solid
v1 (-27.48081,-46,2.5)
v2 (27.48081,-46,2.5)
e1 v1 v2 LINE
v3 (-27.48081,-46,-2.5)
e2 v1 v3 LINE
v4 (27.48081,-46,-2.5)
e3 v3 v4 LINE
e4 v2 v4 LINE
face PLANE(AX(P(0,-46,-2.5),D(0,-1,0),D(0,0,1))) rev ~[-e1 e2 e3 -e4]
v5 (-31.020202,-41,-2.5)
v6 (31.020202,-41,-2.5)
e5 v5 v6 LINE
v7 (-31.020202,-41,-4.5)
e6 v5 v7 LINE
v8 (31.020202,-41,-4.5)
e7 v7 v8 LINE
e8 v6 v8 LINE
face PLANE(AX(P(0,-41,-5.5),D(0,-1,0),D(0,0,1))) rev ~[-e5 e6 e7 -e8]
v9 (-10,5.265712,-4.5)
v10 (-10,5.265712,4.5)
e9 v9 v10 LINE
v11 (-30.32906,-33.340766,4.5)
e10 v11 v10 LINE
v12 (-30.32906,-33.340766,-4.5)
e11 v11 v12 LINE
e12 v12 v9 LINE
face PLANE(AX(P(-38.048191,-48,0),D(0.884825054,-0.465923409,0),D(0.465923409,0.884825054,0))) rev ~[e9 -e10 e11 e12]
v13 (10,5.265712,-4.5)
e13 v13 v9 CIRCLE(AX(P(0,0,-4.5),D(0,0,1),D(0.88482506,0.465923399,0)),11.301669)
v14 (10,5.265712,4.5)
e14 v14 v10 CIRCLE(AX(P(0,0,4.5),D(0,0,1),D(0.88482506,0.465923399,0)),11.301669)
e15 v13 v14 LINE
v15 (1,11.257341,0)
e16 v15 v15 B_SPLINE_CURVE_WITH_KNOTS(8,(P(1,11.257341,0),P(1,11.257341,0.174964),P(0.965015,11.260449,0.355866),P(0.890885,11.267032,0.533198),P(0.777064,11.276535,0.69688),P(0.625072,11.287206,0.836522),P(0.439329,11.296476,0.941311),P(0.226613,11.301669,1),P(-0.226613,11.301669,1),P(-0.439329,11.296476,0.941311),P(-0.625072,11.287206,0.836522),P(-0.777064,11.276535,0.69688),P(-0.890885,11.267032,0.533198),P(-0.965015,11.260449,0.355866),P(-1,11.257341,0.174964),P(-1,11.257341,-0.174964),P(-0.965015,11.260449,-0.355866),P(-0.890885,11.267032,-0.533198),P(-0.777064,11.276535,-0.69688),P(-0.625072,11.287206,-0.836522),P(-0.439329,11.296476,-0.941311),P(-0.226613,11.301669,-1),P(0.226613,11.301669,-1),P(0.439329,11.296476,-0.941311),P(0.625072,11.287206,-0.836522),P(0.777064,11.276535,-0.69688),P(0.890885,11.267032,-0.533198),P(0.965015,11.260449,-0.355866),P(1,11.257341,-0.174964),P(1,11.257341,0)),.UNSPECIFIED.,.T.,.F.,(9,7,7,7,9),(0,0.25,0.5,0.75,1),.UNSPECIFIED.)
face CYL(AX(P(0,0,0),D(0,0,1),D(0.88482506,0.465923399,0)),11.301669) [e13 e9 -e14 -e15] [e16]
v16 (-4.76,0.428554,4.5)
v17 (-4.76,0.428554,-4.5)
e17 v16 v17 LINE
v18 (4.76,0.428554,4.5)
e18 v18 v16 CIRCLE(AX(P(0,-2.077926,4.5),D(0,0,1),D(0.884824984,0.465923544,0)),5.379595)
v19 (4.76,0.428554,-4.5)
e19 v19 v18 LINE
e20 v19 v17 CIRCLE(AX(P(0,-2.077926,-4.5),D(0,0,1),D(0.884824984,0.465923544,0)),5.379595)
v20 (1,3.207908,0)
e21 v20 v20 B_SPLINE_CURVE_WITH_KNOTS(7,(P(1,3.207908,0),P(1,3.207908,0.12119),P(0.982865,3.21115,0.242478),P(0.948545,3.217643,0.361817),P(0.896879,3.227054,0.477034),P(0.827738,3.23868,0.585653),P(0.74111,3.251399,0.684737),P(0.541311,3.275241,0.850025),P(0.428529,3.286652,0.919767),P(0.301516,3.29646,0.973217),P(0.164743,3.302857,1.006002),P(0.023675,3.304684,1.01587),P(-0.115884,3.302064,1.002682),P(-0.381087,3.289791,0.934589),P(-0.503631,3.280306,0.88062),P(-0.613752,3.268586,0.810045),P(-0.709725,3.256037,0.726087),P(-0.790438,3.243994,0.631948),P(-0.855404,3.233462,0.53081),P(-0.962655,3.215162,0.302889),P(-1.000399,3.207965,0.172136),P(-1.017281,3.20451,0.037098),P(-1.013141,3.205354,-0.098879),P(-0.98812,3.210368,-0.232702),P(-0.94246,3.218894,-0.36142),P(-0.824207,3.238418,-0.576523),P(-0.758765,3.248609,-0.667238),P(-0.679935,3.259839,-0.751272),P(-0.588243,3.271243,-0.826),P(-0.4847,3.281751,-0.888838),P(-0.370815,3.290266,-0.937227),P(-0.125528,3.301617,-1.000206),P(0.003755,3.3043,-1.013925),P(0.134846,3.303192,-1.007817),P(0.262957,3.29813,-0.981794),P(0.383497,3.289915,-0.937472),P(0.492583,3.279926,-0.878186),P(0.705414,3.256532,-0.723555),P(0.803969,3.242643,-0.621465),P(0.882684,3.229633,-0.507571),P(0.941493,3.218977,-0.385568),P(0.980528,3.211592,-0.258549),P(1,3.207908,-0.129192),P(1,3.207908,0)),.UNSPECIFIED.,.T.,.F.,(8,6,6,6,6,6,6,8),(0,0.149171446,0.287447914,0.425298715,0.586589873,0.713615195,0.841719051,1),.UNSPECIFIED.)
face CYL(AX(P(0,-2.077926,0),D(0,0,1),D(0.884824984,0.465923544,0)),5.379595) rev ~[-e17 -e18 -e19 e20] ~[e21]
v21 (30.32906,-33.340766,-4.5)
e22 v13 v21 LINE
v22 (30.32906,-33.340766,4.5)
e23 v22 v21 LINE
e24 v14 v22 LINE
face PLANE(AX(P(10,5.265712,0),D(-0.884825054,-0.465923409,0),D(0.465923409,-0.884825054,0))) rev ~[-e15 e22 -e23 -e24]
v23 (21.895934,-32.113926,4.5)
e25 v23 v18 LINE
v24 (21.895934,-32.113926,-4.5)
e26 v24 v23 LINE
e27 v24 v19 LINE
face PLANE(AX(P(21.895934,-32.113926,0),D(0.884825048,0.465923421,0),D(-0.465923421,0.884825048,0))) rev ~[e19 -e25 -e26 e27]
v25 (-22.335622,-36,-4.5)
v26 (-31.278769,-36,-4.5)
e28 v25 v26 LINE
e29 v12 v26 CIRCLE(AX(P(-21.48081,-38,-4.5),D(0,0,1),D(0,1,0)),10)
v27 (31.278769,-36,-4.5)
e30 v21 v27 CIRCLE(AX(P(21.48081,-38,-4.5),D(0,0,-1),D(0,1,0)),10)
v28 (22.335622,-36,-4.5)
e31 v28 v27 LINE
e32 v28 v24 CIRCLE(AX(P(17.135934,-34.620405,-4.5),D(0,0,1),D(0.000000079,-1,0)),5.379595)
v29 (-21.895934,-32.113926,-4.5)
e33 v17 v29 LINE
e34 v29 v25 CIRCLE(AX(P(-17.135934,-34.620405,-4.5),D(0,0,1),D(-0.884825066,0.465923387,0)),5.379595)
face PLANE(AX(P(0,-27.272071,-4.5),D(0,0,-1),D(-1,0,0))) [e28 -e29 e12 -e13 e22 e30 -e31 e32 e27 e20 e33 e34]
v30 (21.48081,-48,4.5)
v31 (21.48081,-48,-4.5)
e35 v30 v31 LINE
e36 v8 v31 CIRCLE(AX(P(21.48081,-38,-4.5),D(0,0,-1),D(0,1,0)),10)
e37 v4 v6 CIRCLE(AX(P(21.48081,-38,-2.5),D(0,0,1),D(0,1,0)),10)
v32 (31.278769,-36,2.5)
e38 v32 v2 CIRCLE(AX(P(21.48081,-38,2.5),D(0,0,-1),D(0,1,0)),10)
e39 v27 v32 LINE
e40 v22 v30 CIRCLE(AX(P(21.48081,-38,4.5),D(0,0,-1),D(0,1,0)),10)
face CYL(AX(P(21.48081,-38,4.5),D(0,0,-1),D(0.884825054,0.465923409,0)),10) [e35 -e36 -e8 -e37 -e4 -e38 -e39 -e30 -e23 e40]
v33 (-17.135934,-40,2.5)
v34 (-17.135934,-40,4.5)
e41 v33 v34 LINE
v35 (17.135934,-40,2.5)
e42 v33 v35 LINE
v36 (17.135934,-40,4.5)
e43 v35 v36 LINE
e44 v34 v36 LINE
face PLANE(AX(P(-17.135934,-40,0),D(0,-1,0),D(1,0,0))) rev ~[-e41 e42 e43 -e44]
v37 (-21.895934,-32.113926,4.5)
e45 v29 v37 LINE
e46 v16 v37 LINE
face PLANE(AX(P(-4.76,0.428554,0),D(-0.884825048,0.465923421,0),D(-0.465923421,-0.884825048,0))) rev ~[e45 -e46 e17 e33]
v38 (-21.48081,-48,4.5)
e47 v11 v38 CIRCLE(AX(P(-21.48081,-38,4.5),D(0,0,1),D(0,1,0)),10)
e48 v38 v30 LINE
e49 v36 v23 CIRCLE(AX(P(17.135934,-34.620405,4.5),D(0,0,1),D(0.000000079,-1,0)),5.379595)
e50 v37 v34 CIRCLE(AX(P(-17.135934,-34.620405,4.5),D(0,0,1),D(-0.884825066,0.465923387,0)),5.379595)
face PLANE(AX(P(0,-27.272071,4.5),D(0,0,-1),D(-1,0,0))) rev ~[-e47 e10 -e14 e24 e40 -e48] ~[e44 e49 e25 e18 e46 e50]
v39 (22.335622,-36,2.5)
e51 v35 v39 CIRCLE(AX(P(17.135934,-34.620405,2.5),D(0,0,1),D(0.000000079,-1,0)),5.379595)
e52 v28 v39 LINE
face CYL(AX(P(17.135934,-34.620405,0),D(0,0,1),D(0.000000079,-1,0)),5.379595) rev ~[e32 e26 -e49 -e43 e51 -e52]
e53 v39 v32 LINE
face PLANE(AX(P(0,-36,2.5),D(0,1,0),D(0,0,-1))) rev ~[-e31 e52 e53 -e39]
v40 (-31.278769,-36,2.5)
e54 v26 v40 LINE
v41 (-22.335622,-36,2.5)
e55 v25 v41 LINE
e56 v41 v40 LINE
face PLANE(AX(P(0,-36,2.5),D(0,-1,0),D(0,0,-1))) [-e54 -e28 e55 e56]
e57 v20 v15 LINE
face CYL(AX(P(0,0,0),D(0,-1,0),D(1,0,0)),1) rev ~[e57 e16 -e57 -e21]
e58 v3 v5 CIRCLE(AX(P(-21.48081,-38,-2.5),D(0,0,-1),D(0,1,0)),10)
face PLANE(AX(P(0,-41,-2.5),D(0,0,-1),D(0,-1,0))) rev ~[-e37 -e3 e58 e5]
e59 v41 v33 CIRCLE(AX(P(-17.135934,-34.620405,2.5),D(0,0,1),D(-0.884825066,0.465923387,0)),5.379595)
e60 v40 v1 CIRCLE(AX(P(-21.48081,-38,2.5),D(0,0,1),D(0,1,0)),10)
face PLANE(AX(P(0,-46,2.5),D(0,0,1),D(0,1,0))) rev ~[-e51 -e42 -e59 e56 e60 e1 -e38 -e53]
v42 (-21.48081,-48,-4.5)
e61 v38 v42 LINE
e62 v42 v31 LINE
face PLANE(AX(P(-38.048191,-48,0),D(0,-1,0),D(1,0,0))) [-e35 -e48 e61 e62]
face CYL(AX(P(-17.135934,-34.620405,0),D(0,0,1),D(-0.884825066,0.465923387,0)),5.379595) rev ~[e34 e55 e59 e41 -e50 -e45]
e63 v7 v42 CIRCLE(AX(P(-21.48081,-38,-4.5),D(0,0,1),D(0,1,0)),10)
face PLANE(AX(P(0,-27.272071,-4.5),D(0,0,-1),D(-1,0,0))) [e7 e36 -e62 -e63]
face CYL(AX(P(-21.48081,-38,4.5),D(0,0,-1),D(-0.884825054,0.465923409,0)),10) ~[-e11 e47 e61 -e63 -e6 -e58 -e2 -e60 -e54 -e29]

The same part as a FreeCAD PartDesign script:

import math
import FreeCAD as App
import Part
import Sketcher
Q = App.Units.Quantity


def edges_at(feature, points):
    """Names of the edges that pass closest to the given points."""
    edges = feature.Shape.Edges
    near = lambda p: min(range(len(edges)), key=lambda i: edges[i].distToShape(Part.Vertex(*p))[0])
    return sorted({f"Edge{near(p) + 1}" for p in points})

doc = App.newDocument("Part")
body = doc.addObject("PartDesign::Body", "Body")

sketch1 = body.newObject("Sketcher::SketchObject", "Sketch")
sketch1.AttachmentSupport = (doc.getObject("XY_Plane"), [""])
sketch1.MapMode = "FlatFace"
sketch1.addGeometry([
    Part.LineSegment(App.Vector(38, -48, 0), App.Vector(10, 5, 0)),
    Part.ArcOfCircle(Part.Circle(App.Vector(0, 0, 0), App.Vector(0, 0, 1), 11), math.radians(28), math.radians(152)),
    Part.LineSegment(App.Vector(-10, 5, 0), App.Vector(-38, -48, 0)),
    Part.LineSegment(App.Vector(-38, -48, 0), App.Vector(38, -48, 0)),
    Part.ArcOfCircle(Part.Circle(App.Vector(0, -2, 0), App.Vector(0, 0, 1), 5), math.radians(28), math.radians(152)),
    Part.LineSegment(App.Vector(5, 0, 0), App.Vector(22, -32, 0)),
    Part.ArcOfCircle(Part.Circle(App.Vector(17, -35, 0), App.Vector(0, 0, 1), 5), math.radians(-90), math.radians(28)),
    Part.LineSegment(App.Vector(17, -40, 0), App.Vector(-17, -40, 0)),
    Part.ArcOfCircle(Part.Circle(App.Vector(-17, -35, 0), App.Vector(0, 0, 1), 5), math.radians(152), math.radians(270)),
    Part.LineSegment(App.Vector(-22, -32, 0), App.Vector(-5, 0, 0)),
], False)
sketch1.addConstraint([
    Sketcher.Constraint("Tangent", 0, 2, 1, 1),
    Sketcher.Constraint("Tangent", 1, 2, 2, 1),
    Sketcher.Constraint("Coincident", 2, 2, 3, 1),
    Sketcher.Constraint("Coincident", 3, 2, 0, 1),
    Sketcher.Constraint("Tangent", 4, 1, 5, 1),
    Sketcher.Constraint("Tangent", 5, 2, 6, 2),
    Sketcher.Constraint("Tangent", 6, 1, 7, 1),
    Sketcher.Constraint("Tangent", 7, 2, 8, 2),
    Sketcher.Constraint("Tangent", 8, 1, 9, 1),
    Sketcher.Constraint("Tangent", 9, 2, 4, 2),
    Sketcher.Constraint("Horizontal", 3),
    Sketcher.Constraint("Horizontal", 7),
    Sketcher.Constraint("Coincident", 1, 3, -1, 1),
    Sketcher.Constraint("Equal", 4, 6),
    Sketcher.Constraint("Equal", 6, 8),
    Sketcher.Constraint("Symmetric", 5, 2, 8, 1, -2),
    Sketcher.Constraint("Parallel", 0, 5),
    Sketcher.Constraint("Parallel", 2, 9),
    Sketcher.Constraint("DistanceX", -1, 1, 0, 2, 10.0),
    Sketcher.Constraint("DistanceY", 2, 2, -1, 1, 48.0),
    Sketcher.Constraint("DistanceY", 6, 1, -1, 1, 40.0),
    Sketcher.Constraint("Angle", 0, Q("117.77 deg")),
    Sketcher.Constraint("DistanceX", -1, 1, 4, 1, 4.76),
    Sketcher.Constraint("DistanceY", 5, 2, 4, 3, 30.036),
])
pad1 = body.newObject("PartDesign::Pad", "Pad")
pad1.Profile = sketch1
pad1.Length = 9
pad1.Midplane = True

sketch2 = body.newObject("Sketcher::SketchObject", "Sketch001")
sketch2.AttachmentSupport = (doc.getObject("XZ_Plane"), [""])
sketch2.MapMode = "FlatFace"
sketch2.addGeometry(Part.Circle(App.Vector(0, 0, 0), App.Vector(0, 0, 1), 1), False)
sketch2.addConstraint([
    Sketcher.Constraint("Coincident", 0, 3, -1, 1),
    Sketcher.Constraint("Diameter", 0, 2.0),
])
pocket1 = body.newObject("PartDesign::Pocket", "Pocket")
pocket1.Profile = sketch2
pocket1.Type = "ThroughAll"

sketch3 = body.newObject("Sketcher::SketchObject", "Sketch002")
sketch3.AttachmentSupport = (doc.getObject("YZ_Plane"), [""])
sketch3.MapMode = "FlatFace"
sketch3.addGeometry([
    Part.LineSegment(App.Vector(-41, -2.5, 0), App.Vector(-41, -5.5, 0)),
    Part.LineSegment(App.Vector(-41, -5.5, 0), App.Vector(-36, -5.5, 0)),
    Part.LineSegment(App.Vector(-36, -5.5, 0), App.Vector(-36, 2.5, 0)),
    Part.LineSegment(App.Vector(-36, 2.5, 0), App.Vector(-46, 2.5, 0)),
    Part.LineSegment(App.Vector(-46, 2.5, 0), App.Vector(-46, -2.5, 0)),
    Part.LineSegment(App.Vector(-46, -2.5, 0), App.Vector(-41, -2.5, 0)),
], False)
sketch3.addConstraint([
    Sketcher.Constraint("Coincident", 0, 2, 1, 1),
    Sketcher.Constraint("Coincident", 1, 2, 2, 1),
    Sketcher.Constraint("Coincident", 2, 2, 3, 1),
    Sketcher.Constraint("Coincident", 3, 2, 4, 1),
    Sketcher.Constraint("Coincident", 4, 2, 5, 1),
    Sketcher.Constraint("Coincident", 5, 2, 0, 1),
    Sketcher.Constraint("Vertical", 0),
    Sketcher.Constraint("Horizontal", 1),
    Sketcher.Constraint("Vertical", 2),
    Sketcher.Constraint("Horizontal", 3),
    Sketcher.Constraint("Vertical", 4),
    Sketcher.Constraint("Horizontal", 5),
    Sketcher.Constraint("Equal", 1, 5),
    Sketcher.Constraint("Equal", 5, 4),
    Sketcher.Constraint("DistanceX", 1, 1, 1, 2, 5.0),
    Sketcher.Constraint("DistanceY", 0, 2, 0, 1, 3.0),
    Sketcher.Constraint("DistanceX", 0, 2, -1, 1, 41.0),
    Sketcher.Constraint("DistanceY", 0, 2, -1, 1, 5.5),
])
pocket2 = body.newObject("PartDesign::Pocket", "Pocket001")
pocket2.Profile = sketch3
pocket2.Type = "ThroughAll"
pocket2.Midplane = True
doc.recompute()

fillet = body.newObject("PartDesign::Fillet", "Fillet")
fillet.Base = (pocket2, edges_at(pocket2, [(38.048, -48, 0), (-38.048, -48, 0)]))
fillet.Radius = 10

doc.recompute()
